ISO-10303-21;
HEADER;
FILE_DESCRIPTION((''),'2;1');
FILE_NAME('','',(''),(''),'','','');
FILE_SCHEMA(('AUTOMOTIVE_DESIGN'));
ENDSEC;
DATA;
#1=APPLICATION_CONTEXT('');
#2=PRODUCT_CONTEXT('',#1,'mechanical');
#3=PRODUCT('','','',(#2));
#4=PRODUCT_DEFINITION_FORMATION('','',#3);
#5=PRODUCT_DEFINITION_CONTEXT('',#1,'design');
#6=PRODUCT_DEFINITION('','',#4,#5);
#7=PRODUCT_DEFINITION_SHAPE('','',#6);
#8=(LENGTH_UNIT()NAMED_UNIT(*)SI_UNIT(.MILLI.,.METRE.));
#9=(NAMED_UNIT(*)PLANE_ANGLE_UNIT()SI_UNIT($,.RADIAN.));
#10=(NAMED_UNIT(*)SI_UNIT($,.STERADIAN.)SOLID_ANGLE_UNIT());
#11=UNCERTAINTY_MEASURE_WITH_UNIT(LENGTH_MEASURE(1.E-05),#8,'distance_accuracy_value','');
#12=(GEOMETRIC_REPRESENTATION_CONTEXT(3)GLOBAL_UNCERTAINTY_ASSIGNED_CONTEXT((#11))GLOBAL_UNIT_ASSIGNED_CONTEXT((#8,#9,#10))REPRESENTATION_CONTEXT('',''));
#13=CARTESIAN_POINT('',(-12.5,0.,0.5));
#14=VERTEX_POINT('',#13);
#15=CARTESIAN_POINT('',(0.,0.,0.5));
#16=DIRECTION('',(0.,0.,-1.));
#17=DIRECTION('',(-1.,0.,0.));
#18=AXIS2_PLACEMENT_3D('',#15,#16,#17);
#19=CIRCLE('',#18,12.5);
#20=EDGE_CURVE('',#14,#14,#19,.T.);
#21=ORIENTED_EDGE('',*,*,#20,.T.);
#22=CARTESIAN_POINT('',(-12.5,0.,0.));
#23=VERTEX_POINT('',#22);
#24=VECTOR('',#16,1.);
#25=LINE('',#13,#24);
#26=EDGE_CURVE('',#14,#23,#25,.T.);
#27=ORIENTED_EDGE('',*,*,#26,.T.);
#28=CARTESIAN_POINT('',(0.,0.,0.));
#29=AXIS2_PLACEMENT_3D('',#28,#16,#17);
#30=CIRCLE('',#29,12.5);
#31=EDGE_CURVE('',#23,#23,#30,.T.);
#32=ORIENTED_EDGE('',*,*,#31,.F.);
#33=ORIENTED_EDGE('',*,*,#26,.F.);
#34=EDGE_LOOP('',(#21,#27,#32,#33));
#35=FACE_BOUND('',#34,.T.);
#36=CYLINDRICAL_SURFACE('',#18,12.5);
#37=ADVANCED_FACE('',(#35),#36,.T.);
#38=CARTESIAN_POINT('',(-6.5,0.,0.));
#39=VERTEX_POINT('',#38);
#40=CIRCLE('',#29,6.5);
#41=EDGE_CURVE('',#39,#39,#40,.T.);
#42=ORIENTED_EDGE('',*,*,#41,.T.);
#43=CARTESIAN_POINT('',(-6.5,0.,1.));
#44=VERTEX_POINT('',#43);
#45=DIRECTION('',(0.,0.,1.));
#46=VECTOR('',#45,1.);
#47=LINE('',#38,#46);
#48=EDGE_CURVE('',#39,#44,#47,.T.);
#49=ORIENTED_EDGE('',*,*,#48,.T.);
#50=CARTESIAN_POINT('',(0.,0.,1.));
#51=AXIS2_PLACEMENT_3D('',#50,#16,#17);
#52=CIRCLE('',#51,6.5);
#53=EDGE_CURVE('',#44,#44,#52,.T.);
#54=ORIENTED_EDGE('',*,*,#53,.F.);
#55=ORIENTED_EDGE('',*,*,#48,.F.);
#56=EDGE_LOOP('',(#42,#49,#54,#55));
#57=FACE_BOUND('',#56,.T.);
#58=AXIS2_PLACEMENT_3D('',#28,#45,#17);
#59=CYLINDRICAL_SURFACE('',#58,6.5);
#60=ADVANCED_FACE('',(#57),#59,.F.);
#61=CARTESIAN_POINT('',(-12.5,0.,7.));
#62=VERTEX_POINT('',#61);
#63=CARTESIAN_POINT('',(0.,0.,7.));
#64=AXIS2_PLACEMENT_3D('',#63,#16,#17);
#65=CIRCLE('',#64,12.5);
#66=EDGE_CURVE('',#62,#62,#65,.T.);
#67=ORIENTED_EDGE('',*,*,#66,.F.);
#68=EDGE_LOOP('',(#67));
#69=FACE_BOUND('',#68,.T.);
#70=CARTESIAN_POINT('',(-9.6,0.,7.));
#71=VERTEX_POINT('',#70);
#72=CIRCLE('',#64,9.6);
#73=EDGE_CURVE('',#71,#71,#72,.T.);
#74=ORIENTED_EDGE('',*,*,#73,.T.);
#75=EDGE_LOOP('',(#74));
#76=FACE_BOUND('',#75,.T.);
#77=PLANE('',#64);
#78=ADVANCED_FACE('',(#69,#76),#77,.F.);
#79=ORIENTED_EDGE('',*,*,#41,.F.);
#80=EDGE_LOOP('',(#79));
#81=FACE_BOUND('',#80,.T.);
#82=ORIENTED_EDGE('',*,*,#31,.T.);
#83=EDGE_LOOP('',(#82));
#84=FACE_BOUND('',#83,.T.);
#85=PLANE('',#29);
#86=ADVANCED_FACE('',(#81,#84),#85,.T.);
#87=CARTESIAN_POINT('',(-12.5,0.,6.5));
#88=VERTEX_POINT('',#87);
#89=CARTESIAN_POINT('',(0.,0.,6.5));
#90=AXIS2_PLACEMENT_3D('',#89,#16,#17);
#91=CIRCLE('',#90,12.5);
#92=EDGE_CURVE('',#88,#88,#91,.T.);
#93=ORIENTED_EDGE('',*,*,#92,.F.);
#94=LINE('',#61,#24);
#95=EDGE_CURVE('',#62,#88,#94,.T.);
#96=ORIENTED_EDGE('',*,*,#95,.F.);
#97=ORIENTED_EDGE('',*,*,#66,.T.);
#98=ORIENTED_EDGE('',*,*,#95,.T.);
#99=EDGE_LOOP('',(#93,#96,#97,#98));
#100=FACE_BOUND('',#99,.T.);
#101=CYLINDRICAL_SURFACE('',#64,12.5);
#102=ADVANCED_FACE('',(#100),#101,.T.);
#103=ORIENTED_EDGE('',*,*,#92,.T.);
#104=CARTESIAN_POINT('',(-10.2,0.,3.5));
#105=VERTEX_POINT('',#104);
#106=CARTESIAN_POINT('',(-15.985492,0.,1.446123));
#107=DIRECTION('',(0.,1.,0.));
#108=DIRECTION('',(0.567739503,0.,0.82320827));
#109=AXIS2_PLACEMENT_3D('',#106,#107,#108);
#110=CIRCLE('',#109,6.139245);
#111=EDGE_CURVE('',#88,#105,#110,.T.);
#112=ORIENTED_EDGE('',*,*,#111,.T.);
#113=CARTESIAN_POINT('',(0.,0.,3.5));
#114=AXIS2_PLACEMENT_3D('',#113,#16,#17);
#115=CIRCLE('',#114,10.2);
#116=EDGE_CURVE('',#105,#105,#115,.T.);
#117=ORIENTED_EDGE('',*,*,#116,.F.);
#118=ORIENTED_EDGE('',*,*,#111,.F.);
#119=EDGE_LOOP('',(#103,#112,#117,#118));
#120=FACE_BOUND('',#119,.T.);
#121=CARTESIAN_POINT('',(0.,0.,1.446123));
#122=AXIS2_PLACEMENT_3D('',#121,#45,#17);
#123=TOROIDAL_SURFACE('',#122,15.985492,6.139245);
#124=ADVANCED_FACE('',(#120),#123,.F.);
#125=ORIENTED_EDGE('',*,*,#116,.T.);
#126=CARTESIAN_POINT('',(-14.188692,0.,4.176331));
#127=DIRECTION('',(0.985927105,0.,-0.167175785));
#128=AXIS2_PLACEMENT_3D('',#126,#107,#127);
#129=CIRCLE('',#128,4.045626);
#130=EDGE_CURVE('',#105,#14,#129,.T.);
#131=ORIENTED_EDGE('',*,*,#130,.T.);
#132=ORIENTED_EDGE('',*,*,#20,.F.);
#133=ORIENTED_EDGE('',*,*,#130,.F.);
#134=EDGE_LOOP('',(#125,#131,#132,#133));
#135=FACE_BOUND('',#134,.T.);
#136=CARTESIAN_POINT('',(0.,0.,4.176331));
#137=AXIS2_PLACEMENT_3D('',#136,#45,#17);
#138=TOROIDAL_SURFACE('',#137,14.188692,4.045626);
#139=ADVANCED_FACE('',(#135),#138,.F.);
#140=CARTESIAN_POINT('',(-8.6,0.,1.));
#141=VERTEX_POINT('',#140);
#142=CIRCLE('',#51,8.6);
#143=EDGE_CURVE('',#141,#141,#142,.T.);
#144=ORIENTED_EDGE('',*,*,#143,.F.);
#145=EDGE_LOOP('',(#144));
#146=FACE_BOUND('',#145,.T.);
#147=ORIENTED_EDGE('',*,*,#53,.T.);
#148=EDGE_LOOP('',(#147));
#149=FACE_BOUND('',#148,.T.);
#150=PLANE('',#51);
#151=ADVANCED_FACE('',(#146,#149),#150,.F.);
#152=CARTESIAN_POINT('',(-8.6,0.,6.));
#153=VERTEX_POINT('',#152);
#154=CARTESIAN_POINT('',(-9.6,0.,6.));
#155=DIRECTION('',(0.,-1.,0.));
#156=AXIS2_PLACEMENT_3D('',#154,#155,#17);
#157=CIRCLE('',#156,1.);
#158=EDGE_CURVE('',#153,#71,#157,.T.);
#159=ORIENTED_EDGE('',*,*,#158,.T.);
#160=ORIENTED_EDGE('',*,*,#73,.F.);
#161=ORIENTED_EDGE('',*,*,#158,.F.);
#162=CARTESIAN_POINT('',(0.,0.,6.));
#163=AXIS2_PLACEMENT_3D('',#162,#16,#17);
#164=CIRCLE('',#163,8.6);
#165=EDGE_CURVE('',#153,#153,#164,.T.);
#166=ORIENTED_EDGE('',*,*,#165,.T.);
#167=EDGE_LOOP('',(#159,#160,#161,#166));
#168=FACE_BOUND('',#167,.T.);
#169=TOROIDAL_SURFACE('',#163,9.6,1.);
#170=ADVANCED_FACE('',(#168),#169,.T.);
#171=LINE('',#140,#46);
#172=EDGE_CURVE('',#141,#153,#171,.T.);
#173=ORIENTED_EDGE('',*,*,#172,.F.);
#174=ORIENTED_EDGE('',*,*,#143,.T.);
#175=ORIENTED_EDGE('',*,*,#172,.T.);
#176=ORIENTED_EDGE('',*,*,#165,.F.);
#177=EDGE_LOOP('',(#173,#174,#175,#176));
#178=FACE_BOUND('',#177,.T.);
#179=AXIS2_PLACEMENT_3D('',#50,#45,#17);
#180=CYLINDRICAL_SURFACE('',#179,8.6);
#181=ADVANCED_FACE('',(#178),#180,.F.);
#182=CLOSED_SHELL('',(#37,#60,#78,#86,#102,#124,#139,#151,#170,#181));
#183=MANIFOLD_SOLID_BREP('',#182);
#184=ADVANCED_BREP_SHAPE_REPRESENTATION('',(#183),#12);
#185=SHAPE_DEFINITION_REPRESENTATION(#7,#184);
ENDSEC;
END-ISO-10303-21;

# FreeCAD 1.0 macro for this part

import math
import FreeCAD as App
import Part
import Sketcher

V = App.Vector


def edges_at(feature, points):
    """Names of the edges that pass closest to the given points."""
    edges = feature.Shape.Edges
    near = lambda p: min(range(len(edges)), key=lambda i: edges[i].distToShape(Part.Vertex(*p))[0])
    return sorted({f"Edge{near(p) + 1}" for p in points})

doc = App.newDocument("Part")
body = doc.addObject("PartDesign::Body", "Body")

# Sketch on XZ plane
sketch1 = doc.addObject("Sketcher::SketchObject", "Sketch")
body.addObject(sketch1)
sketch1.AttachmentSupport = (doc.XZ_Plane, [""])
sketch1.MapMode = "FlatFace"
sketch1.addGeometry([
    Part.LineSegment(V(-6.5, 0, 0), V(-6.5, 1, 0)),  # 0
    Part.LineSegment(V(-6.5, 1, 0), V(-8.6, 1, 0)),  # 1
    Part.LineSegment(V(-8.6, 1, 0), V(-8.6, 7, 0)),  # 2
    Part.LineSegment(V(-8.6, 7, 0), V(-12.5, 7, 0)),  # 3
    Part.LineSegment(V(-12.5, 7, 0), V(-12.5, 6.5, 0)),  # 4
    Part.ArcOfCircle(Part.Circle(V(-16, 1.4, 0), V(0, 0, 1), 6.1), math.radians(20), math.radians(55)),  # 5
    Part.ArcOfCircle(Part.Circle(V(-14.2, 4.2, 0), V(0, 0, 1), 4), math.radians(-65), math.radians(-10)),  # 6
    Part.LineSegment(V(-12.5, 0.5, 0), V(-12.5, 0, 0)),  # 7
    Part.LineSegment(V(-12.5, 0, 0), V(-6.5, 0, 0)),  # 8
], False)
sketch1.addConstraint([
    Sketcher.Constraint("Coincident", 0, 2, 1, 1),
    Sketcher.Constraint("Coincident", 1, 2, 2, 1),
    Sketcher.Constraint("Coincident", 2, 2, 3, 1),
    Sketcher.Constraint("Coincident", 3, 2, 4, 1),
    Sketcher.Constraint("Coincident", 4, 2, 5, 2),
    Sketcher.Constraint("Coincident", 5, 1, 6, 2),
    Sketcher.Constraint("Coincident", 6, 1, 7, 1),
    Sketcher.Constraint("Coincident", 7, 2, 8, 1),
    Sketcher.Constraint("Coincident", 8, 2, 0, 1),
    Sketcher.Constraint("Vertical", 0),
    Sketcher.Constraint("Horizontal", 1),
    Sketcher.Constraint("Vertical", 2),
    Sketcher.Constraint("Horizontal", 3),
    Sketcher.Constraint("Vertical", 4),
    Sketcher.Constraint("Vertical", 7),
    Sketcher.Constraint("Horizontal", 8),
    Sketcher.Constraint("PointOnObject", 7, 2, -1),
    Sketcher.Constraint("Vertical", 4, 2, 6, 1),
    Sketcher.Constraint("Equal", 8, 2),
    Sketcher.Constraint("Equal", 4, 7),
    Sketcher.Constraint("DistanceX", 8, 1, 8, 2, 6.0),
    Sketcher.Constraint("DistanceY", 0, 1, 0, 2, 1.0),
    Sketcher.Constraint("DistanceX", 1, 2, 1, 1, 2.1),
    Sketcher.Constraint("DistanceY", 4, 2, 4, 1, 0.5),
    Sketcher.Constraint("DistanceY", 5, 1, 4, 2, 3.0),
    Sketcher.Constraint("DistanceX", 0, 2, -1, 1, 6.5),
    Sketcher.Constraint("DistanceX", 5, 1, -1, 1, 10.2),
    Sketcher.Constraint("Radius", 5, 6.139245),
    Sketcher.Constraint("Radius", 6, 4.045626),
])
revolution = doc.addObject("PartDesign::Revolution", "Revolution")
body.addObject(revolution)
revolution.Profile = sketch1
revolution.ReferenceAxis = (sketch1, ["V_Axis"])
revolution.Angle = 360
doc.recompute()

fillet = doc.addObject("PartDesign::Fillet", "Fillet")
body.addObject(fillet)
fillet.Base = (revolution, edges_at(revolution, [(8.6, 0, 7)]))
fillet.Radius = 1

doc.recompute()
